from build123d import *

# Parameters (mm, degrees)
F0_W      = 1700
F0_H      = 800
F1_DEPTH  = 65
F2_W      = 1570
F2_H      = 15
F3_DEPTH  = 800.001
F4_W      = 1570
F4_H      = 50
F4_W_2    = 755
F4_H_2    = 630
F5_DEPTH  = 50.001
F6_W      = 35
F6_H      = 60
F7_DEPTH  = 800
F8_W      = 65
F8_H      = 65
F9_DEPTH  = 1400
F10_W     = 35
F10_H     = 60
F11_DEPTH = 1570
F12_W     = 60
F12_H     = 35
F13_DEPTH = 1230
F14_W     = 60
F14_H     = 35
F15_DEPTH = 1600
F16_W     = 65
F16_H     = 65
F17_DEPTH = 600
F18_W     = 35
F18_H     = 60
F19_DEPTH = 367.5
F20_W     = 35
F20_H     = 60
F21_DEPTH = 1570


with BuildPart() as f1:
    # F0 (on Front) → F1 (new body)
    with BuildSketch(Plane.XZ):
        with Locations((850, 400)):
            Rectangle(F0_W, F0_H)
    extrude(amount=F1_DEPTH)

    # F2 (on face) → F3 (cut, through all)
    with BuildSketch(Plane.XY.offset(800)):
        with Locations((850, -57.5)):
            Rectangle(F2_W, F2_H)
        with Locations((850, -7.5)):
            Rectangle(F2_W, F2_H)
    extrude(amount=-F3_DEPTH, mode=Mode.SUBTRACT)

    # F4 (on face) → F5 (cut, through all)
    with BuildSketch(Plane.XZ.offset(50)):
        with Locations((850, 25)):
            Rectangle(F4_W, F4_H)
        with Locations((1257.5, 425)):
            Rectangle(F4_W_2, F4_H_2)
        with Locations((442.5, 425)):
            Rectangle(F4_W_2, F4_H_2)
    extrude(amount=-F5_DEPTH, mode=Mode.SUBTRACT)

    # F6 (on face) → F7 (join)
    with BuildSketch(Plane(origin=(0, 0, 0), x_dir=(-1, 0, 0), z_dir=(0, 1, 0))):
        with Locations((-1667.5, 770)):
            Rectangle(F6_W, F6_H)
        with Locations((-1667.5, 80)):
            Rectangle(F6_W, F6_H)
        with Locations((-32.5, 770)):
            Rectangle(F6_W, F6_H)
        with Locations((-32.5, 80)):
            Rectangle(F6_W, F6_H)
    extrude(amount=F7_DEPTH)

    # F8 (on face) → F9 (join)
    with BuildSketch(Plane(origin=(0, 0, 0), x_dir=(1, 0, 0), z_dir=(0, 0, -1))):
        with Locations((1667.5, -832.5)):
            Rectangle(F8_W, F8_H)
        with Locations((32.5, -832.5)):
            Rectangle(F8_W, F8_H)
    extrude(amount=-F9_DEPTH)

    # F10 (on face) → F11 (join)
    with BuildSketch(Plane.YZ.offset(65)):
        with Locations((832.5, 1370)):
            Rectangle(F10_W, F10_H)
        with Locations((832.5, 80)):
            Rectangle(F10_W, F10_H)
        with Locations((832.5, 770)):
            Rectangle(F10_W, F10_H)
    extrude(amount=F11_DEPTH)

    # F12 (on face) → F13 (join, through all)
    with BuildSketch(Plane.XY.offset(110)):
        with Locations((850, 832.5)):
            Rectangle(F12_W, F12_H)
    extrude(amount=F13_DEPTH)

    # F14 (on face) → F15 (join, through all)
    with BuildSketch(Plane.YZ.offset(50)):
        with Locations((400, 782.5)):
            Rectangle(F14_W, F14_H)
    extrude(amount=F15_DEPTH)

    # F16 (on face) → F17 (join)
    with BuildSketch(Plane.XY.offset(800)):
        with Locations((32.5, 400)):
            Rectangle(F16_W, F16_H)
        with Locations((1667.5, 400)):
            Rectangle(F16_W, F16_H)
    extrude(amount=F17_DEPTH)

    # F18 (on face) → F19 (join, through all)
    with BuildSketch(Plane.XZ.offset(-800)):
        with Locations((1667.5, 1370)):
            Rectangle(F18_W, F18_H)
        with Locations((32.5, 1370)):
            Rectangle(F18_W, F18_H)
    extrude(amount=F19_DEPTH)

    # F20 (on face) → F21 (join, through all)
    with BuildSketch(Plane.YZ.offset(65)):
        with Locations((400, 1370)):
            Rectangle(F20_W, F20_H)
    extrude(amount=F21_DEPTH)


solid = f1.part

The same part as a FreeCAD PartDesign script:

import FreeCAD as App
import Part
import Sketcher

V = App.Vector
Q = App.Units.Quantity


def add_polygon(sketch, points):
    """Adds a closed chain of lines whose ends are joined by coincident constraints."""
    first, n = sketch.GeometryCount, len(points)
    for a, b in zip(points, points[1:] + points[:1]):
        sketch.addGeometry(Part.LineSegment(App.Vector(*a, 0), App.Vector(*b, 0)), False)
    for i in range(n):
        sketch.addConstraint(Sketcher.Constraint("Coincident", first + i, 2, first + (i + 1) % n, 1))

doc = App.newDocument("Part")
body = doc.addObject("PartDesign::Body", "Body")

# Sketch on XZ plane
sketch1 = doc.addObject("Sketcher::SketchObject", "Sketch")
body.addObject(sketch1)
sketch1.AttachmentSupport = (doc.XZ_Plane, [""])
sketch1.MapMode = "FlatFace"
add_polygon(sketch1, [(0, 800), (0, 0), (1700, 0), (1700, 800)])  # lines 0-3
sketch1.addConstraint([
    Sketcher.Constraint("Vertical", 0),
    Sketcher.Constraint("Horizontal", 1),
    Sketcher.Constraint("Vertical", 2),
    Sketcher.Constraint("Horizontal", 3),
    Sketcher.Constraint("Coincident", 0, 2, -1, 1),
    Sketcher.Constraint("DistanceX", 1, 1, 1, 2, Q("1700 mm")),
    Sketcher.Constraint("DistanceY", 0, 2, 0, 1, Q("800 mm")),
])
pad1 = doc.addObject("PartDesign::Pad", "Pad")
body.addObject(pad1)
pad1.Profile = sketch1
pad1.Length = 65

# Sketch on XY plane
sketch2 = doc.addObject("Sketcher::SketchObject", "Sketch001")
body.addObject(sketch2)
sketch2.AttachmentSupport = (doc.XY_Plane, [""])
sketch2.MapMode = "FlatFace"
sketch2.AttachmentOffset = App.Placement(V(0, 0, 800), App.Rotation())
add_polygon(sketch2, [(65, -50), (65, -65), (1635, -65), (1635, -50)])  # lines 0-3
add_polygon(sketch2, [(65, 0), (65, -15), (1635, -15), (1635, 0)])  # lines 4-7
sketch2.addConstraint([
    Sketcher.Constraint("Vertical", 0),
    Sketcher.Constraint("Horizontal", 1),
    Sketcher.Constraint("Vertical", 2),
    Sketcher.Constraint("Horizontal", 3),
    Sketcher.Constraint("Vertical", 4),
    Sketcher.Constraint("Horizontal", 5),
    Sketcher.Constraint("Vertical", 6),
    Sketcher.Constraint("Horizontal", 7),
    Sketcher.Constraint("PointOnObject", 6, 2, -1),
    Sketcher.Constraint("Vertical", 3, 2, 4, 2),
    Sketcher.Constraint("Vertical", 2, 2, 5, 2),
    Sketcher.Constraint("Equal", 2, 4),
    Sketcher.Constraint("DistanceX", 1, 1, 1, 2, Q("1570 mm")),
    Sketcher.Constraint("DistanceY", 0, 2, 0, 1, Q("15 mm")),
    Sketcher.Constraint("DistanceX", -1, 1, 0, 2, Q("65 mm")),
    Sketcher.Constraint("DistanceY", 0, 2, -1, 1, Q("65 mm")),
])
pocket1 = doc.addObject("PartDesign::Pocket", "Pocket")
body.addObject(pocket1)
pocket1.Profile = sketch2
pocket1.Type = "ThroughAll"

# Sketch on XZ plane
sketch3 = doc.addObject("Sketcher::SketchObject", "Sketch002")
body.addObject(sketch3)
sketch3.AttachmentSupport = (doc.XZ_Plane, [""])
sketch3.MapMode = "FlatFace"
sketch3.AttachmentOffset = App.Placement(V(0, 0, 50), App.Rotation())
add_polygon(sketch3, [(65, 50), (65, 0), (1635, 0), (1635, 50)])  # lines 0-3
add_polygon(sketch3, [(880, 740), (880, 110), (1635, 110), (1635, 740)])  # lines 4-7
add_polygon(sketch3, [(65, 740), (65, 110), (820, 110), (820, 740)])  # lines 8-11
sketch3.addConstraint([
    Sketcher.Constraint("Vertical", 0),
    Sketcher.Constraint("Horizontal", 1),
    Sketcher.Constraint("Vertical", 2),
    Sketcher.Constraint("Horizontal", 3),
    Sketcher.Constraint("Vertical", 4),
    Sketcher.Constraint("Horizontal", 5),
    Sketcher.Constraint("Vertical", 6),
    Sketcher.Constraint("Horizontal", 7),
    Sketcher.Constraint("Vertical", 8),
    Sketcher.Constraint("Horizontal", 9),
    Sketcher.Constraint("Vertical", 10),
    Sketcher.Constraint("Horizontal", 11),
    Sketcher.Constraint("PointOnObject", 0, 2, -1),
    Sketcher.Constraint("Horizontal", 5, 2, 8, 2),
    Sketcher.Constraint("Horizontal", 7, 2, 10, 2),
    Sketcher.Constraint("Vertical", 2, 2, 5, 2),
    Sketcher.Constraint("Vertical", 3, 2, 8, 2),
    Sketcher.Constraint("Equal", 7, 9),
    Sketcher.Constraint("DistanceX", 1, 1, 1, 2, Q("1570 mm")),
    Sketcher.Constraint("DistanceX", 5, 1, 5, 2, Q("755 mm")),
    Sketcher.Constraint("DistanceY", 0, 2, 0, 1, Q("50 mm")),
    Sketcher.Constraint("DistanceY", 4, 2, 4, 1, Q("630 mm")),
    Sketcher.Constraint("DistanceX", -1, 1, 0, 2, Q("65 mm")),
    Sketcher.Constraint("DistanceY", -1, 1, 4, 2, Q("110 mm")),
])
pocket2 = doc.addObject("PartDesign::Pocket", "Pocket001")
body.addObject(pocket2)
pocket2.Profile = sketch3
pocket2.Type = "ThroughAll"

# Sketch on XZ plane
sketch4 = doc.addObject("Sketcher::SketchObject", "Sketch003")
body.addObject(sketch4)
sketch4.AttachmentSupport = (doc.XZ_Plane, [""])
sketch4.MapMode = "FlatFace"
add_polygon(sketch4, [(1685, 800), (1685, 740), (1650, 740), (1650, 800)])  # lines 0-3
add_polygon(sketch4, [(1685, 110), (1685, 50), (1650, 50), (1650, 110)])  # lines 4-7
add_polygon(sketch4, [(50, 800), (50, 740), (15, 740), (15, 800)])  # lines 8-11
add_polygon(sketch4, [(50, 110), (50, 50), (15, 50), (15, 110)])  # lines 12-15
sketch4.addConstraint([
    Sketcher.Constraint("Vertical", 0),
    Sketcher.Constraint("Horizontal", 1),
    Sketcher.Constraint("Vertical", 2),
    Sketcher.Constraint("Horizontal", 3),
    Sketcher.Constraint("Vertical", 4),
    Sketcher.Constraint("Horizontal", 5),
    Sketcher.Constraint("Vertical", 6),
    Sketcher.Constraint("Horizontal", 7),
    Sketcher.Constraint("Vertical", 8),
    Sketcher.Constraint("Horizontal", 9),
    Sketcher.Constraint("Vertical", 10),
    Sketcher.Constraint("Horizontal", 11),
    Sketcher.Constraint("Vertical", 12),
    Sketcher.Constraint("Horizontal", 13),
    Sketcher.Constraint("Vertical", 14),
    Sketcher.Constraint("Horizontal", 15),
    Sketcher.Constraint("Horizontal", 1, 2, 8, 2),
    Sketcher.Constraint("Horizontal", 3, 2, 10, 2),
    Sketcher.Constraint("Horizontal", 5, 2, 12, 2),
    Sketcher.Constraint("Horizontal", 7, 2, 14, 2),
    Sketcher.Constraint("Vertical", 3, 2, 4, 2),
    Sketcher.Constraint("Vertical", 2, 2, 5, 2),
    Sketcher.Constraint("Vertical", 11, 2, 12, 2),
    Sketcher.Constraint("Vertical", 10, 2, 13, 2),
    Sketcher.Constraint("Equal", 7, 9),
    Sketcher.Constraint("Equal", 2, 4),
    Sketcher.Constraint("DistanceX", 1, 2, 1, 1, Q("35 mm")),
    Sketcher.Constraint("DistanceY", 0, 2, 0, 1, Q("60 mm")),
    Sketcher.Constraint("DistanceX", -1, 1, 0, 2, Q("1685 mm")),
    Sketcher.Constraint("DistanceY", -1, 1, 0, 2, Q("740 mm")),
    Sketcher.Constraint("DistanceY", -1, 1, 4, 2, Q("50 mm")),
    Sketcher.Constraint("DistanceX", -1, 1, 8, 2, Q("50 mm")),
])
pad2 = doc.addObject("PartDesign::Pad", "Pad001")
body.addObject(pad2)
pad2.Profile = sketch4
pad2.Length = 800
pad2.Reversed = True

# Sketch on XY plane
sketch5 = doc.addObject("Sketcher::SketchObject", "Sketch004")
body.addObject(sketch5)
sketch5.AttachmentSupport = (doc.XY_Plane, [""])
sketch5.MapMode = "FlatFace"
add_polygon(sketch5, [(1635, 800), (1635, 865), (1700, 865), (1700, 800)])  # lines 0-3
add_polygon(sketch5, [(0, 800), (0, 865), (65, 865), (65, 800)])  # lines 4-7
sketch5.addConstraint([
    Sketcher.Constraint("Vertical", 0),
    Sketcher.Constraint("Horizontal", 1),
    Sketcher.Constraint("Vertical", 2),
    Sketcher.Constraint("Horizontal", 3),
    Sketcher.Constraint("Vertical", 4),
    Sketcher.Constraint("Horizontal", 5),
    Sketcher.Constraint("Vertical", 6),
    Sketcher.Constraint("Horizontal", 7),
    Sketcher.Constraint("PointOnObject", 4, 2, -2),
    Sketcher.Constraint("Horizontal", 1, 2, 4, 2),
    Sketcher.Constraint("Horizontal", 3, 2, 6, 2),
    Sketcher.Constraint("Equal", 3, 5),
    Sketcher.Constraint("Equal", 7, 0),
    Sketcher.Constraint("DistanceX", 1, 1, 1, 2, Q("65 mm")),
    Sketcher.Constraint("DistanceX", -1, 1, 0, 2, Q("1635 mm")),
    Sketcher.Constraint("DistanceY", -1, 1, 0, 2, Q("865 mm")),
])
pad3 = doc.addObject("PartDesign::Pad", "Pad002")
body.addObject(pad3)
pad3.Profile = sketch5
pad3.Length = 1400

# Sketch on YZ plane
sketch6 = doc.addObject("Sketcher::SketchObject", "Sketch005")
body.addObject(sketch6)
sketch6.AttachmentSupport = (doc.YZ_Plane, [""])
sketch6.MapMode = "FlatFace"
sketch6.AttachmentOffset = App.Placement(V(0, 0, 65), App.Rotation())
add_polygon(sketch6, [(815, 1400), (815, 1340), (850, 1340), (850, 1400)])  # lines 0-3
add_polygon(sketch6, [(815, 110), (815, 50), (850, 50), (850, 110)])  # lines 4-7
add_polygon(sketch6, [(815, 800), (815, 740), (850, 740), (850, 800)])  # lines 8-11
sketch6.addConstraint([
    Sketcher.Constraint("Vertical", 0),
    Sketcher.Constraint("Horizontal", 1),
    Sketcher.Constraint("Vertical", 2),
    Sketcher.Constraint("Horizontal", 3),
    Sketcher.Constraint("Vertical", 4),
    Sketcher.Constraint("Horizontal", 5),
    Sketcher.Constraint("Vertical", 6),
    Sketcher.Constraint("Horizontal", 7),
    Sketcher.Constraint("Vertical", 8),
    Sketcher.Constraint("Horizontal", 9),
    Sketcher.Constraint("Vertical", 10),
    Sketcher.Constraint("Horizontal", 11),
    Sketcher.Constraint("Vertical", 3, 2, 4, 2),
    Sketcher.Constraint("Vertical", 2, 2, 5, 2),
    Sketcher.Constraint("Vertical", 7, 2, 8, 2),
    Sketcher.Constraint("Vertical", 6, 2, 9, 2),
    Sketcher.Constraint("Equal", 2, 4),
    Sketcher.Constraint("Equal", 6, 8),
    Sketcher.Constraint("DistanceX", 1, 1, 1, 2, Q("35 mm")),
    Sketcher.Constraint("DistanceY", 0, 2, 0, 1, Q("60 mm")),
    Sketcher.Constraint("DistanceX", -1, 1, 0, 2, Q("815 mm")),
    Sketcher.Constraint("DistanceY", -1, 1, 0, 2, Q("1340 mm")),
    Sketcher.Constraint("DistanceY", -1, 1, 4, 2, Q("50 mm")),
    Sketcher.Constraint("DistanceY", -1, 1, 8, 2, Q("740 mm")),
])
pad4 = doc.addObject("PartDesign::Pad", "Pad003")
body.addObject(pad4)
pad4.Profile = sketch6
pad4.Length = 1570

# Sketch on XY plane
sketch7 = doc.addObject("Sketcher::SketchObject", "Sketch006")
body.addObject(sketch7)
sketch7.AttachmentSupport = (doc.XY_Plane, [""])
sketch7.MapMode = "FlatFace"
sketch7.AttachmentOffset = App.Placement(V(0, 0, 110), App.Rotation())
add_polygon(sketch7, [(820, 850), (820, 815), (880, 815), (880, 850)])  # lines 0-3
sketch7.addConstraint([
    Sketcher.Constraint("Vertical", 0),
    Sketcher.Constraint("Horizontal", 1),
    Sketcher.Constraint("Vertical", 2),
    Sketcher.Constraint("Horizontal", 3),
    Sketcher.Constraint("DistanceX", 1, 1, 1, 2, Q("60 mm")),
    Sketcher.Constraint("DistanceY", 0, 2, 0, 1, Q("35 mm")),
    Sketcher.Constraint("DistanceX", -1, 1, 0, 2, Q("820 mm")),
    Sketcher.Constraint("DistanceY", -1, 1, 0, 2, Q("815 mm")),
])
pad5 = doc.addObject("PartDesign::Pad", "Pad004")
body.addObject(pad5)
pad5.Profile = sketch7
pad5.Type = "UpToLast"

# Sketch on YZ plane
sketch8 = doc.addObject("Sketcher::SketchObject", "Sketch007")
body.addObject(sketch8)
sketch8.AttachmentSupport = (doc.YZ_Plane, [""])
sketch8.MapMode = "FlatFace"
sketch8.AttachmentOffset = App.Placement(V(0, 0, 50), App.Rotation())
add_polygon(sketch8, [(370, 800), (370, 765), (430, 765), (430, 800)])  # lines 0-3
sketch8.addConstraint([
    Sketcher.Constraint("Vertical", 0),
    Sketcher.Constraint("Horizontal", 1),
    Sketcher.Constraint("Vertical", 2),
    Sketcher.Constraint("Horizontal", 3),
    Sketcher.Constraint("DistanceX", 1, 1, 1, 2, Q("60 mm")),
    Sketcher.Constraint("DistanceY", 0, 2, 0, 1, Q("35 mm")),
    Sketcher.Constraint("DistanceX", -1, 1, 0, 2, Q("370 mm")),
    Sketcher.Constraint("DistanceY", -1, 1, 0, 2, Q("765 mm")),
])
pad6 = doc.addObject("PartDesign::Pad", "Pad005")
body.addObject(pad6)
pad6.Profile = sketch8
pad6.Type = "UpToLast"

# Sketch on XY plane
sketch9 = doc.addObject("Sketcher::SketchObject", "Sketch008")
body.addObject(sketch9)
sketch9.AttachmentSupport = (doc.XY_Plane, [""])
sketch9.MapMode = "FlatFace"
sketch9.AttachmentOffset = App.Placement(V(0, 0, 800), App.Rotation())
add_polygon(sketch9, [(0, 432), (0, 368), (65, 368), (65, 432)])  # lines 0-3
add_polygon(sketch9, [(1635, 432), (1635, 368), (1700, 368), (1700, 432)])  # lines 4-7
sketch9.addConstraint([
    Sketcher.Constraint("Vertical", 0),
    Sketcher.Constraint("Horizontal", 1),
    Sketcher.Constraint("Vertical", 2),
    Sketcher.Constraint("Horizontal", 3),
    Sketcher.Constraint("Vertical", 4),
    Sketcher.Constraint("Horizontal", 5),
    Sketcher.Constraint("Vertical", 6),
    Sketcher.Constraint("Horizontal", 7),
    Sketcher.Constraint("PointOnObject", 0, 2, -2),
    Sketcher.Constraint("Horizontal", 1, 2, 4, 2),
    Sketcher.Constraint("Horizontal", 3, 2, 6, 2),
    Sketcher.Constraint("Equal", 3, 5),
    Sketcher.Constraint("Equal", 7, 0),
    Sketcher.Constraint("DistanceX", 1, 1, 1, 2, Q("65 mm")),
    Sketcher.Constraint("DistanceX", -1, 1, 4, 2, Q("1635 mm")),
    Sketcher.Constraint("DistanceY", -1, 1, 0, 2, Q("367.5 mm")),
])
pad7 = doc.addObject("PartDesign::Pad", "Pad006")
body.addObject(pad7)
pad7.Profile = sketch9
pad7.Length = 600

# Sketch on XZ plane
sketch10 = doc.addObject("Sketcher::SketchObject", "Sketch009")
body.addObject(sketch10)
sketch10.AttachmentSupport = (doc.XZ_Plane, [""])
sketch10.MapMode = "FlatFace"
sketch10.AttachmentOffset = App.Placement(V(0, 0, -800), App.Rotation())
add_polygon(sketch10, [(1650, 1400), (1650, 1340), (1685, 1340), (1685, 1400)])  # lines 0-3
add_polygon(sketch10, [(15, 1400), (15, 1340), (50, 1340), (50, 1400)])  # lines 4-7
sketch10.addConstraint([
    Sketcher.Constraint("Vertical", 0),
    Sketcher.Constraint("Horizontal", 1),
    Sketcher.Constraint("Vertical", 2),
    Sketcher.Constraint("Horizontal", 3),
    Sketcher.Constraint("Vertical", 4),
    Sketcher.Constraint("Horizontal", 5),
    Sketcher.Constraint("Vertical", 6),
    Sketcher.Constraint("Horizontal", 7),
    Sketcher.Constraint("Horizontal", 1, 2, 4, 2),
    Sketcher.Constraint("Horizontal", 3, 2, 6, 2),
    Sketcher.Constraint("Equal", 3, 5),
    Sketcher.Constraint("DistanceX", 1, 1, 1, 2, Q("35 mm")),
    Sketcher.Constraint("DistanceY", 0, 2, 0, 1, Q("60 mm")),
    Sketcher.Constraint("DistanceX", -1, 1, 0, 2, Q("1650 mm")),
    Sketcher.Constraint("DistanceY", -1, 1, 0, 2, Q("1340 mm")),
    Sketcher.Constraint("DistanceX", -1, 1, 4, 2, Q("15 mm")),
])
pad8 = doc.addObject("PartDesign::Pad", "Pad007")
body.addObject(pad8)
pad8.Profile = sketch10
pad8.Length = 367.5

# Sketch on YZ plane
sketch11 = doc.addObject("Sketcher::SketchObject", "Sketch010")
body.addObject(sketch11)
sketch11.AttachmentSupport = (doc.YZ_Plane, [""])
sketch11.MapMode = "FlatFace"
sketch11.AttachmentOffset = App.Placement(V(0, 0, 65), App.Rotation())
add_polygon(sketch11, [(382, 1400), (382, 1340), (418, 1340), (418, 1400)])  # lines 0-3
sketch11.addConstraint([
    Sketcher.Constraint("Vertical", 0),
    Sketcher.Constraint("Horizontal", 1),
    Sketcher.Constraint("Vertical", 2),
    Sketcher.Constraint("Horizontal", 3),
    Sketcher.Constraint("DistanceX", 1, 1, 1, 2, Q("35 mm")),
    Sketcher.Constraint("DistanceY", 0, 2, 0, 1, Q("60 mm")),
    Sketcher.Constraint("DistanceY", -1, 1, 0, 2, Q("1340 mm")),
    Sketcher.Constraint("DistanceX", -1, 1, 0, 2, Q("382.5 mm")),
])
pad9 = doc.addObject("PartDesign::Pad", "Pad008")
body.addObject(pad9)
pad9.Profile = sketch11
pad9.Type = "UpToLast"

doc.recompute()
